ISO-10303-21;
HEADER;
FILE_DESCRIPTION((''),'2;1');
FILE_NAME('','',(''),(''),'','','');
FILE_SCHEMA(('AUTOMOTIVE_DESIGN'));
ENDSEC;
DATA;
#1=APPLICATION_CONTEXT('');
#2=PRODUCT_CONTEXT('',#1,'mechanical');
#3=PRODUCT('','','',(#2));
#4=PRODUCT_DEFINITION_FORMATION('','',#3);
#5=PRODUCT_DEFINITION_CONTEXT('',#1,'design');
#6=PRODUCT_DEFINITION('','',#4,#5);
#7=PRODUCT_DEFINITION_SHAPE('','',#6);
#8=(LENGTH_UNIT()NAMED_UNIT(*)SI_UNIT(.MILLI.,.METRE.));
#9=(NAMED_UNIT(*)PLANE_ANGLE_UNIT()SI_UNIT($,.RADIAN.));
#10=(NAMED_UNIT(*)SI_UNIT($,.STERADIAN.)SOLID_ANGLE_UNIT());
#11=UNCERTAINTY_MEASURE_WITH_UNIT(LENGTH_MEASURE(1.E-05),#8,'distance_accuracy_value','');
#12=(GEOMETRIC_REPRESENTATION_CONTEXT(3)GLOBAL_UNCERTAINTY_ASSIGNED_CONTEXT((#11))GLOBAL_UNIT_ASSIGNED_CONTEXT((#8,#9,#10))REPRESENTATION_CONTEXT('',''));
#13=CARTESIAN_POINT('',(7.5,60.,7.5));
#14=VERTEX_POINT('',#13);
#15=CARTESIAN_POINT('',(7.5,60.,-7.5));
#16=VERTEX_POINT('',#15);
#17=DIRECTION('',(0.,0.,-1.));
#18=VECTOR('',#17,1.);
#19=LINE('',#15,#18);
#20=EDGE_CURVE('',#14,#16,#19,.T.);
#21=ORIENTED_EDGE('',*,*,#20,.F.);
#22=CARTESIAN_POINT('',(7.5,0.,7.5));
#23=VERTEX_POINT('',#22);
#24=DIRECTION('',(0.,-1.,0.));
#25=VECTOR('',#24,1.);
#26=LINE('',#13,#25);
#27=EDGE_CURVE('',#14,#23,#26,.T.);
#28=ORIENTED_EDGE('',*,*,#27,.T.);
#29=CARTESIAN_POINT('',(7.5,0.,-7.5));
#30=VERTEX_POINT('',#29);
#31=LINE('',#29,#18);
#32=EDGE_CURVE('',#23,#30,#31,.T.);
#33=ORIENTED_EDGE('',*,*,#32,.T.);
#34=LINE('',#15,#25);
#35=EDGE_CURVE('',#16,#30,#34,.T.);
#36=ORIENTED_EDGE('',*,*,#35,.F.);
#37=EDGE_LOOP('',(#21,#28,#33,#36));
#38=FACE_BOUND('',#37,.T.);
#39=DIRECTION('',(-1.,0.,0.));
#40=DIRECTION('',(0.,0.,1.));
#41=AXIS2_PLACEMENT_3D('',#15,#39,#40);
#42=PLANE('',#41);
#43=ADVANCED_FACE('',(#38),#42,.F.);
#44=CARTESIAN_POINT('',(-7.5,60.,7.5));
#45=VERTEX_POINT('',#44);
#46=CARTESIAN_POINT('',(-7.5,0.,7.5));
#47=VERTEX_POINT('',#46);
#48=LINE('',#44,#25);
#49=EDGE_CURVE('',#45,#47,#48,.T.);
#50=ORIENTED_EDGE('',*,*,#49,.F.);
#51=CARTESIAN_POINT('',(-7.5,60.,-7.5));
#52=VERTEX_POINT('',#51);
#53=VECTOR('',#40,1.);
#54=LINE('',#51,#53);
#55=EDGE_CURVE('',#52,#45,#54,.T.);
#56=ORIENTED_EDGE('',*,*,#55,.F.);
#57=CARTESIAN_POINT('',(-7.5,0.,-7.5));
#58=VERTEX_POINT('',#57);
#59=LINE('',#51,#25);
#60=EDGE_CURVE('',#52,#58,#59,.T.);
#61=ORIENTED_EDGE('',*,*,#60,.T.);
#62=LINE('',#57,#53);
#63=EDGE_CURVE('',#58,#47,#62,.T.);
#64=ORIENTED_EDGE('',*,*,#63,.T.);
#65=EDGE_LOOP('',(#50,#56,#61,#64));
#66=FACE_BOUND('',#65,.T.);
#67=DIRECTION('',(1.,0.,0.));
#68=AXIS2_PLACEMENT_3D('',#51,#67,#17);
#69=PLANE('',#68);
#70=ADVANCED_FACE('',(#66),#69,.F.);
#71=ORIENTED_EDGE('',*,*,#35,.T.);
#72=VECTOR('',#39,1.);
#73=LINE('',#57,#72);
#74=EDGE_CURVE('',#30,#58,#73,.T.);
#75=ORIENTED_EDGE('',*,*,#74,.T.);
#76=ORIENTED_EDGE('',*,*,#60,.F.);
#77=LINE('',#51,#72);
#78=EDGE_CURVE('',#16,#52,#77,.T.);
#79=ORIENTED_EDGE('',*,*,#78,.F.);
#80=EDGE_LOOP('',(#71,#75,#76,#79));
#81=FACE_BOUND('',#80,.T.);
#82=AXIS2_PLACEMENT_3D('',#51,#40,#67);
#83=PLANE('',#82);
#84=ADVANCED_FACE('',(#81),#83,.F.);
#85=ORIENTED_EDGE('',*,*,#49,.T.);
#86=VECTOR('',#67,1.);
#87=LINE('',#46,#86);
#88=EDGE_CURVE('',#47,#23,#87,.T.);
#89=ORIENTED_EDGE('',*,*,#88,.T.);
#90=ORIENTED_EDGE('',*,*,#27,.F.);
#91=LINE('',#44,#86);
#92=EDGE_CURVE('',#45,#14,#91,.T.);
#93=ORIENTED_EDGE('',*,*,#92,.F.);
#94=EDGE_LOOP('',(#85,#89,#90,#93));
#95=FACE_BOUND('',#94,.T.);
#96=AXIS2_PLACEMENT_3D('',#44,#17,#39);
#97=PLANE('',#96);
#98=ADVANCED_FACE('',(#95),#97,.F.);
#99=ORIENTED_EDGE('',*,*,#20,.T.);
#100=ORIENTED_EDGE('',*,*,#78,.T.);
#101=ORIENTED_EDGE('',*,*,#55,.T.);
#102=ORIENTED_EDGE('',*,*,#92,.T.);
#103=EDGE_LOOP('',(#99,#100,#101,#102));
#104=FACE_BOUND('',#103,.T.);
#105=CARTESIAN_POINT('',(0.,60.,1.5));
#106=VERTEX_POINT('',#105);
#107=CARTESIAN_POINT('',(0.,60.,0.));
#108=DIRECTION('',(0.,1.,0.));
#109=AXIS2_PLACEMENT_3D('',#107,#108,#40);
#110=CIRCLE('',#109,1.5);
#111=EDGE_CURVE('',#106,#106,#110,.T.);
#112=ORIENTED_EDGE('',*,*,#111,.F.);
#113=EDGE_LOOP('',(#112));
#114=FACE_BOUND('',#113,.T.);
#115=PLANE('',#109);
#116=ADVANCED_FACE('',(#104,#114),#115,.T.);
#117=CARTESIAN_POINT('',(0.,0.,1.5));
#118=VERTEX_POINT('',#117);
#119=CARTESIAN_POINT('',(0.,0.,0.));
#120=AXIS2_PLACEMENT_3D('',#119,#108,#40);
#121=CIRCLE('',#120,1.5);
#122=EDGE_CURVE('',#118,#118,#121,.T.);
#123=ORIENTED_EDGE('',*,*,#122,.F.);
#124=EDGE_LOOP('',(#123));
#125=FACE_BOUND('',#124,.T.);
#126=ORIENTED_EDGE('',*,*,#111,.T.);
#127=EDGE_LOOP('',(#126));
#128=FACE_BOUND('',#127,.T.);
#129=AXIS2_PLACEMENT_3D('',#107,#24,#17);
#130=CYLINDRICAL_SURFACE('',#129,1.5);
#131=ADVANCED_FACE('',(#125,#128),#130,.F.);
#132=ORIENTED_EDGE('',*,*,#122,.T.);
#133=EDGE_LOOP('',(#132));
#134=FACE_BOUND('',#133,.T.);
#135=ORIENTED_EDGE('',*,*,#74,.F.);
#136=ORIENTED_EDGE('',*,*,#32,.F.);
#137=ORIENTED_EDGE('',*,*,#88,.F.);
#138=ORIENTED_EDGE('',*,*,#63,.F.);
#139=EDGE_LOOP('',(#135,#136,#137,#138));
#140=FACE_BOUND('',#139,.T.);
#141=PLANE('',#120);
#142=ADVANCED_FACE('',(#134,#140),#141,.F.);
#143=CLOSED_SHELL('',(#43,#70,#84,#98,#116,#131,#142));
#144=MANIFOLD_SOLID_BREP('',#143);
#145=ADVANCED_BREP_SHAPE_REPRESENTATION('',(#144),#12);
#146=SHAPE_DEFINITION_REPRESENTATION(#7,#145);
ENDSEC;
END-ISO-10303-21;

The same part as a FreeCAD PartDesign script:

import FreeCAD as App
import Part
import Sketcher

doc = App.newDocument("Part")
body = doc.addObject("PartDesign::Body", "Body")

# Sketch on XZ plane
sketch1 = body.newObject("Sketcher::SketchObject", "Sketch")
sketch1.AttachmentSupport = (doc.getObject("XZ_Plane"), [""])
sketch1.MapMode = "FlatFace"
sketch1.addGeometry([
    Part.LineSegment(App.Vector(-7.5, -7.5, 0), App.Vector(-7.5, 7.5, 0)),  # 0
    Part.LineSegment(App.Vector(-7.5, 7.5, 0), App.Vector(7.5, 7.5, 0)),  # 1
    Part.LineSegment(App.Vector(7.5, 7.5, 0), App.Vector(7.5, -7.5, 0)),  # 2
    Part.LineSegment(App.Vector(7.5, -7.5, 0), App.Vector(-7.5, -7.5, 0)),  # 3
    Part.Circle(App.Vector(0, 0, 0), App.Vector(0, 0, 1), 1.5),  # 4
], False)
sketch1.addConstraint([
    Sketcher.Constraint("Coincident", 0, 2, 1, 1),
    Sketcher.Constraint("Coincident", 1, 2, 2, 1),
    Sketcher.Constraint("Coincident", 2, 2, 3, 1),
    Sketcher.Constraint("Coincident", 3, 2, 0, 1),
    Sketcher.Constraint("Vertical", 0),
    Sketcher.Constraint("Horizontal", 1),
    Sketcher.Constraint("Vertical", 2),
    Sketcher.Constraint("Horizontal", 3),
    Sketcher.Constraint("Coincident", 4, 3, -1, 1),
    Sketcher.Constraint("Symmetric", 0, 2, 2, 2, -1, 1),
    Sketcher.Constraint("Equal", 3, 0),
    Sketcher.Constraint("Diameter", 4, 3.0),
    Sketcher.Constraint("DistanceX", 1, 1, 1, 2, 15.0),
])
pad1 = body.newObject("PartDesign::Pad", "Pad")
pad1.Profile = sketch1
pad1.Length = 60
pad1.Reversed = True

doc.recompute()
